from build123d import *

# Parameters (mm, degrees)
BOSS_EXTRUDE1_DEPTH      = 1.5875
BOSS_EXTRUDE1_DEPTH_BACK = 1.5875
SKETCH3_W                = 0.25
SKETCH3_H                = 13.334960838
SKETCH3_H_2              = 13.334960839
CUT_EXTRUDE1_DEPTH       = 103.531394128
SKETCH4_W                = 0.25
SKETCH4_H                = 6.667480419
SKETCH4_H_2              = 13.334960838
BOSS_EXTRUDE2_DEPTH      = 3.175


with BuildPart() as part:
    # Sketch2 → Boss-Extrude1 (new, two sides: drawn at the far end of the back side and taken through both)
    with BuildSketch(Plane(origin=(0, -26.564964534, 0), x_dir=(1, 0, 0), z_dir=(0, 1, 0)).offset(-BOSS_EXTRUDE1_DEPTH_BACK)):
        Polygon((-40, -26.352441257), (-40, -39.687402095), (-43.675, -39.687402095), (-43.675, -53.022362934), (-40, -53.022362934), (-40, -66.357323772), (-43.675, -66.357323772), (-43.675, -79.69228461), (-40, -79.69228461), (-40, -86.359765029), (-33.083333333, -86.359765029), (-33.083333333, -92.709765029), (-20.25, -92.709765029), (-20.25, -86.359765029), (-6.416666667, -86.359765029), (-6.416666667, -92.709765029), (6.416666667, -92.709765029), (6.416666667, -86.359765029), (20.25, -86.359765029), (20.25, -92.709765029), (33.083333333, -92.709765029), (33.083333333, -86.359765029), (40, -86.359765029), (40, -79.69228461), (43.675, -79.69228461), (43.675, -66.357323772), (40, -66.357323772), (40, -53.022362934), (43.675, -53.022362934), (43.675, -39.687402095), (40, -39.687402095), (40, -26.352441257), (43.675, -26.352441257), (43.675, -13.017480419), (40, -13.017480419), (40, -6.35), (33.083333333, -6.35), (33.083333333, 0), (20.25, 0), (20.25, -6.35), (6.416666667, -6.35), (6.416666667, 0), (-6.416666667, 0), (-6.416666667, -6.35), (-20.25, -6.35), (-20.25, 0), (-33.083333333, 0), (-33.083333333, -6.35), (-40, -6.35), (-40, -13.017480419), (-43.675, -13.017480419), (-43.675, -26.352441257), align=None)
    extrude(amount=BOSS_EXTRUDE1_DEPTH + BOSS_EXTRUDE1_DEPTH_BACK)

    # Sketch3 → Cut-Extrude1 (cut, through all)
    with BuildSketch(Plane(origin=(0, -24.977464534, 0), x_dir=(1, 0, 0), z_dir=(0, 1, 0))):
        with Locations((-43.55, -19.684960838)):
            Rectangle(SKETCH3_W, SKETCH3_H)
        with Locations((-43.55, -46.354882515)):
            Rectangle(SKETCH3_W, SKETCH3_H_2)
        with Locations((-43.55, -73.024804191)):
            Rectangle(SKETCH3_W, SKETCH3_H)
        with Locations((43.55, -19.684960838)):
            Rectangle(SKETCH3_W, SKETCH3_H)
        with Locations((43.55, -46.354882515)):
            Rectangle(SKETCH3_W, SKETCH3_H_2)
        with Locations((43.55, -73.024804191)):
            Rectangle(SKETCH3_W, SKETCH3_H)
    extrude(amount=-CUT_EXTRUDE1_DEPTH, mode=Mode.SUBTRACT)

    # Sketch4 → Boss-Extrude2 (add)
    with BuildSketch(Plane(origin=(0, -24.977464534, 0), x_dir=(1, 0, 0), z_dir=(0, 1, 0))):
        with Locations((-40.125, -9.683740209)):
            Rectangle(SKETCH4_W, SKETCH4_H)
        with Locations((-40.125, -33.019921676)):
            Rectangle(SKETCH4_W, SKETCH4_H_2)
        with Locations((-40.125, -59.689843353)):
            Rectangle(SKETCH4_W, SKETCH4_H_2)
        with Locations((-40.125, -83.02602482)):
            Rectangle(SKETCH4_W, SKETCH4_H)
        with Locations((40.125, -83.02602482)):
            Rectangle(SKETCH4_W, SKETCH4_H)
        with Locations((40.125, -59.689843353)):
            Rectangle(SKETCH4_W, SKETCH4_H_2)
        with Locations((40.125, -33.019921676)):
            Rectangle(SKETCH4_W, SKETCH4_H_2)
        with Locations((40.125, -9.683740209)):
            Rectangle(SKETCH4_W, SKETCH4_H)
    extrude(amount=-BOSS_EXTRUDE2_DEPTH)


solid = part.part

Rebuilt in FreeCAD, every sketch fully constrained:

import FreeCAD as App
import Part
import Sketcher
from FreeCAD import Vector
Q = App.Units.Quantity


def add_polygon(sketch, points):
    """Adds a closed chain of lines whose ends are joined by coincident constraints."""
    first, n = sketch.GeometryCount, len(points)
    for a, b in zip(points, points[1:] + points[:1]):
        sketch.addGeometry(Part.LineSegment(App.Vector(*a, 0), App.Vector(*b, 0)), False)
    for i in range(n):
        sketch.addConstraint(Sketcher.Constraint("Coincident", first + i, 2, first + (i + 1) % n, 1))

doc = App.newDocument("Part")
body = doc.addObject("PartDesign::Body", "Body")

sketch1 = body.newObject("Sketcher::SketchObject", "Sketch")
sketch1.AttachmentSupport = (doc.getObject("XZ_Plane"), [""])
sketch1.MapMode = "FlatFace"
sketch1.AttachmentOffset = App.Placement(Vector(0, 0, 26.564965), App.Rotation())
add_polygon(sketch1, [(-40, 26.4), (-40, 39.7), (-43.7, 39.7), (-43.7, 53), (-40, 53), (-40, 66.4), (-43.7, 66.4), (-43.7, 79.7), (-40, 79.7), (-40, 86.4), (-33.1, 86.4), (-33.1, 92.7), (-20.2, 92.7), (-20.2, 86.4), (-6.4, 86.4), (-6.4, 92.7), (6.4, 92.7), (6.4, 86.4), (20.2, 86.4), (20.2, 92.7), (33.1, 92.7), (33.1, 86.4), (40, 86.4), (40, 79.7), (43.7, 79.7), (43.7, 66.4), (40, 66.4), (40, 53), (43.7, 53), (43.7, 39.7), (40, 39.7), (40, 26.4), (43.7, 26.4), (43.7, 13), (40, 13), (40, 6.3), (33.1, 6.3), (33.1, 0), (20.2, 0), (20.2, 6.3), (6.4, 6.3), (6.4, 0), (-6.4, 0), (-6.4, 6.3), (-20.2, 6.3), (-20.2, 0), (-33.1, 0), (-33.1, 6.3), (-40, 6.3), (-40, 13), (-43.7, 13), (-43.7, 26.4)])
sketch1.addConstraint(Sketcher.Constraint("Vertical", 0))
sketch1.addConstraint(Sketcher.Constraint("Horizontal", 1))
sketch1.addConstraint(Sketcher.Constraint("Vertical", 2))
sketch1.addConstraint(Sketcher.Constraint("Horizontal", 3))
sketch1.addConstraint(Sketcher.Constraint("Vertical", 4))
sketch1.addConstraint(Sketcher.Constraint("Horizontal", 5))
sketch1.addConstraint(Sketcher.Constraint("Vertical", 6))
sketch1.addConstraint(Sketcher.Constraint("Horizontal", 7))
sketch1.addConstraint(Sketcher.Constraint("Vertical", 8))
sketch1.addConstraint(Sketcher.Constraint("Horizontal", 9))
sketch1.addConstraint(Sketcher.Constraint("Vertical", 10))
sketch1.addConstraint(Sketcher.Constraint("Horizontal", 11))
sketch1.addConstraint(Sketcher.Constraint("Vertical", 12))
sketch1.addConstraint(Sketcher.Constraint("Horizontal", 13))
sketch1.addConstraint(Sketcher.Constraint("Vertical", 14))
sketch1.addConstraint(Sketcher.Constraint("Horizontal", 15))
sketch1.addConstraint(Sketcher.Constraint("Vertical", 16))
sketch1.addConstraint(Sketcher.Constraint("Horizontal", 17))
sketch1.addConstraint(Sketcher.Constraint("Vertical", 18))
sketch1.addConstraint(Sketcher.Constraint("Horizontal", 19))
sketch1.addConstraint(Sketcher.Constraint("Vertical", 20))
sketch1.addConstraint(Sketcher.Constraint("Horizontal", 21))
sketch1.addConstraint(Sketcher.Constraint("Vertical", 22))
sketch1.addConstraint(Sketcher.Constraint("Horizontal", 23))
sketch1.addConstraint(Sketcher.Constraint("Vertical", 24))
sketch1.addConstraint(Sketcher.Constraint("Horizontal", 25))
sketch1.addConstraint(Sketcher.Constraint("Vertical", 26))
sketch1.addConstraint(Sketcher.Constraint("Horizontal", 27))
sketch1.addConstraint(Sketcher.Constraint("Vertical", 28))
sketch1.addConstraint(Sketcher.Constraint("Horizontal", 29))
sketch1.addConstraint(Sketcher.Constraint("Vertical", 30))
sketch1.addConstraint(Sketcher.Constraint("Horizontal", 31))
sketch1.addConstraint(Sketcher.Constraint("Vertical", 32))
sketch1.addConstraint(Sketcher.Constraint("Horizontal", 33))
sketch1.addConstraint(Sketcher.Constraint("Vertical", 34))
sketch1.addConstraint(Sketcher.Constraint("Horizontal", 35))
sketch1.addConstraint(Sketcher.Constraint("Vertical", 36))
sketch1.addConstraint(Sketcher.Constraint("Horizontal", 37))
sketch1.addConstraint(Sketcher.Constraint("Vertical", 38))
sketch1.addConstraint(Sketcher.Constraint("Horizontal", 39))
sketch1.addConstraint(Sketcher.Constraint("Vertical", 40))
sketch1.addConstraint(Sketcher.Constraint("Horizontal", 41))
sketch1.addConstraint(Sketcher.Constraint("Vertical", 42))
sketch1.addConstraint(Sketcher.Constraint("Horizontal", 43))
sketch1.addConstraint(Sketcher.Constraint("Vertical", 44))
sketch1.addConstraint(Sketcher.Constraint("Horizontal", 45))
sketch1.addConstraint(Sketcher.Constraint("Vertical", 46))
sketch1.addConstraint(Sketcher.Constraint("Horizontal", 47))
sketch1.addConstraint(Sketcher.Constraint("Vertical", 48))
sketch1.addConstraint(Sketcher.Constraint("Horizontal", 49))
sketch1.addConstraint(Sketcher.Constraint("Vertical", 50))
sketch1.addConstraint(Sketcher.Constraint("Horizontal", 51))
sketch1.addConstraint(Sketcher.Constraint("Symmetric", 40, 2, 41, 2, -1, 1))
sketch1.addConstraint(Sketcher.Constraint("Symmetric", 37, 2, 44, 2, -1, 1))
sketch1.addConstraint(Sketcher.Constraint("Symmetric", 13, 2, 16, 2, -2))
sketch1.addConstraint(Sketcher.Constraint("Symmetric", 11, 2, 18, 2, -2))
sketch1.addConstraint(Sketcher.Constraint("Symmetric", 9, 2, 20, 2, -2))
sketch1.addConstraint(Sketcher.Constraint("Symmetric", 7, 2, 22, 2, -2))
sketch1.addConstraint(Sketcher.Constraint("Symmetric", 5, 2, 24, 2, -2))
sketch1.addConstraint(Sketcher.Constraint("Symmetric", 3, 2, 26, 2, -2))
sketch1.addConstraint(Sketcher.Constraint("Symmetric", 1, 2, 28, 2, -2))
sketch1.addConstraint(Sketcher.Constraint("Symmetric", 36, 2, 45, 2, -2))
sketch1.addConstraint(Sketcher.Constraint("Symmetric", 34, 2, 47, 2, -2))
sketch1.addConstraint(Sketcher.Constraint("Symmetric", 32, 2, 49, 2, -2))
sketch1.addConstraint(Sketcher.Constraint("Symmetric", 30, 2, 51, 2, -2))
sketch1.addConstraint(Sketcher.Constraint("Horizontal", 9, 2, 12, 2))
sketch1.addConstraint(Sketcher.Constraint("Horizontal", 11, 2, 14, 2))
sketch1.addConstraint(Sketcher.Constraint("Horizontal", 35, 2, 38, 2))
sketch1.addConstraint(Sketcher.Constraint("Horizontal", 39, 2, 42, 2))
sketch1.addConstraint(Sketcher.Constraint("Vertical", 0, 2, 3, 2))
sketch1.addConstraint(Sketcher.Constraint("Vertical", 2, 2, 5, 2))
sketch1.addConstraint(Sketcher.Constraint("Vertical", 4, 2, 7, 2))
sketch1.addConstraint(Sketcher.Constraint("Vertical", 28, 2, 31, 2))
sketch1.addConstraint(Sketcher.Constraint("Vertical", 30, 2, 33, 2))
sketch1.addConstraint(Sketcher.Constraint("Vertical", 20, 2, 35, 2))
sketch1.addConstraint(Sketcher.Constraint("Vertical", 18, 2, 37, 2))
sketch1.addConstraint(Sketcher.Constraint("Vertical", 16, 2, 39, 2))
sketch1.addConstraint(Sketcher.Constraint("Equal", 11, 15))
sketch1.addConstraint(Sketcher.Constraint("Equal", 0, 2))
sketch1.addConstraint(Sketcher.Constraint("Equal", 2, 4))
sketch1.addConstraint(Sketcher.Constraint("Equal", 4, 6))
sketch1.addConstraint(Sketcher.Constraint("Equal", 30, 32))
sketch1.addConstraint(Sketcher.Constraint("Equal", 22, 34))
sketch1.addConstraint(Sketcher.Constraint("Equal", 20, 36))
sketch1.addConstraint(Sketcher.Constraint("DistanceY", 10, 1, 10, 2, Q("0.25 in")))
sketch1.addConstraint(Sketcher.Constraint("DistanceX", 1, 2, 1, 1, Q("3.675 mm")))
sketch1.addConstraint(Sketcher.Constraint("DistanceY", 0, 1, 0, 2, Q("13.334961 mm")))
sketch1.addConstraint(Sketcher.Constraint("DistanceY", 8, 1, 8, 2, Q("6.66748 mm")))
sketch1.addConstraint(Sketcher.Constraint("DistanceX", 0, 2, -1, 1, Q("40 mm")))
sketch1.addConstraint(Sketcher.Constraint("DistanceX", 11, 2, -1, 1, Q("20.25 mm")))
sketch1.addConstraint(Sketcher.Constraint("DistanceX", 10, 2, 15, 2, Q("39.5 mm")))
pad1 = body.newObject("PartDesign::Pad", "Pad")
pad1.Profile = sketch1
pad1.Type = "TwoLengths"
pad1.Length = Q("0.0625 in")
pad1.Length2 = Q("0.0625 in")
pad1.Reversed = True

sketch2 = body.newObject("Sketcher::SketchObject", "Sketch001")
sketch2.AttachmentSupport = (doc.getObject("XZ_Plane"), [""])
sketch2.MapMode = "FlatFace"
sketch2.AttachmentOffset = App.Placement(Vector(0, 0, 24.977465), App.Rotation())
add_polygon(sketch2, [(-43.67, 13.02), (-43.67, 26.35), (-43.42, 26.35), (-43.42, 13.02)])
add_polygon(sketch2, [(-43.67, 39.69), (-43.67, 53.02), (-43.42, 53.02), (-43.42, 39.69)])
add_polygon(sketch2, [(-43.67, 66.36), (-43.67, 79.69), (-43.42, 79.69), (-43.42, 66.36)])
add_polygon(sketch2, [(43.42, 13.02), (43.42, 26.35), (43.67, 26.35), (43.67, 13.02)])
add_polygon(sketch2, [(43.42, 39.69), (43.42, 53.02), (43.67, 53.02), (43.67, 39.69)])
add_polygon(sketch2, [(43.42, 66.36), (43.42, 79.69), (43.67, 79.69), (43.67, 66.36)])
sketch2.addConstraint(Sketcher.Constraint("Vertical", 0))
sketch2.addConstraint(Sketcher.Constraint("Horizontal", 1))
sketch2.addConstraint(Sketcher.Constraint("Vertical", 2))
sketch2.addConstraint(Sketcher.Constraint("Horizontal", 3))
sketch2.addConstraint(Sketcher.Constraint("Vertical", 4))
sketch2.addConstraint(Sketcher.Constraint("Horizontal", 5))
sketch2.addConstraint(Sketcher.Constraint("Vertical", 6))
sketch2.addConstraint(Sketcher.Constraint("Horizontal", 7))
sketch2.addConstraint(Sketcher.Constraint("Vertical", 8))
sketch2.addConstraint(Sketcher.Constraint("Horizontal", 9))
sketch2.addConstraint(Sketcher.Constraint("Vertical", 10))
sketch2.addConstraint(Sketcher.Constraint("Horizontal", 11))
sketch2.addConstraint(Sketcher.Constraint("Vertical", 12))
sketch2.addConstraint(Sketcher.Constraint("Horizontal", 13))
sketch2.addConstraint(Sketcher.Constraint("Vertical", 14))
sketch2.addConstraint(Sketcher.Constraint("Horizontal", 15))
sketch2.addConstraint(Sketcher.Constraint("Vertical", 16))
sketch2.addConstraint(Sketcher.Constraint("Horizontal", 17))
sketch2.addConstraint(Sketcher.Constraint("Vertical", 18))
sketch2.addConstraint(Sketcher.Constraint("Horizontal", 19))
sketch2.addConstraint(Sketcher.Constraint("Vertical", 20))
sketch2.addConstraint(Sketcher.Constraint("Horizontal", 21))
sketch2.addConstraint(Sketcher.Constraint("Vertical", 22))
sketch2.addConstraint(Sketcher.Constraint("Horizontal", 23))
sketch2.addConstraint(Sketcher.Constraint("Symmetric", 1, 2, 12, 2, -2))
sketch2.addConstraint(Sketcher.Constraint("Symmetric", 3, 2, 14, 2, -2))
sketch2.addConstraint(Sketcher.Constraint("Symmetric", 5, 2, 16, 2, -2))
sketch2.addConstraint(Sketcher.Constraint("Symmetric", 7, 2, 18, 2, -2))
sketch2.addConstraint(Sketcher.Constraint("Symmetric", 9, 2, 20, 2, -2))
sketch2.addConstraint(Sketcher.Constraint("Symmetric", 11, 2, 22, 2, -2))
sketch2.addConstraint(Sketcher.Constraint("Vertical", 3, 2, 4, 2))
sketch2.addConstraint(Sketcher.Constraint("Vertical", 2, 2, 5, 2))
sketch2.addConstraint(Sketcher.Constraint("Vertical", 7, 2, 8, 2))
sketch2.addConstraint(Sketcher.Constraint("Vertical", 6, 2, 9, 2))
sketch2.addConstraint(Sketcher.Constraint("Equal", 2, 4))
sketch2.addConstraint(Sketcher.Constraint("Equal", 6, 8))
sketch2.addConstraint(Sketcher.Constraint("DistanceX", 1, 1, 1, 2, Q("0.25 mm")))
sketch2.addConstraint(Sketcher.Constraint("DistanceY", 0, 1, 0, 2, Q("13.334961 mm")))
sketch2.addConstraint(Sketcher.Constraint("DistanceX", 0, 2, -1, 1, Q("43.675 mm")))
sketch2.addConstraint(Sketcher.Constraint("DistanceY", -1, 1, 0, 2, Q("26.352441 mm")))
sketch2.addConstraint(Sketcher.Constraint("DistanceY", 0, 2, 4, 2, Q("26.669922 mm")))
sketch2.addConstraint(Sketcher.Constraint("DistanceY", 4, 2, 8, 2, Q("26.669922 mm")))
pocket1 = body.newObject("PartDesign::Pocket", "Pocket")
pocket1.Profile = sketch2
pocket1.Type = "ThroughAll"
pocket1.Reversed = True

sketch3 = body.newObject("Sketcher::SketchObject", "Sketch002")
sketch3.AttachmentSupport = (doc.getObject("XZ_Plane"), [""])
sketch3.MapMode = "FlatFace"
sketch3.AttachmentOffset = App.Placement(Vector(0, 0, 24.977465), App.Rotation())
add_polygon(sketch3, [(-40.25, 6.35), (-40.25, 13.02), (-40, 13.02), (-40, 6.35)])
add_polygon(sketch3, [(-40.25, 26.35), (-40.25, 39.69), (-40, 39.69), (-40, 26.35)])
add_polygon(sketch3, [(-40.25, 53.02), (-40.25, 66.36), (-40, 66.36), (-40, 53.02)])
add_polygon(sketch3, [(-40.25, 79.69), (-40.25, 86.36), (-40, 86.36), (-40, 79.69)])
add_polygon(sketch3, [(40, 79.69), (40, 86.36), (40.25, 86.36), (40.25, 79.69)])
add_polygon(sketch3, [(40, 53.02), (40, 66.36), (40.25, 66.36), (40.25, 53.02)])
add_polygon(sketch3, [(40, 26.35), (40, 39.69), (40.25, 39.69), (40.25, 26.35)])
add_polygon(sketch3, [(40, 6.35), (40, 13.02), (40.25, 13.02), (40.25, 6.35)])
sketch3.addConstraint(Sketcher.Constraint("Vertical", 0))
sketch3.addConstraint(Sketcher.Constraint("Horizontal", 1))
sketch3.addConstraint(Sketcher.Constraint("Vertical", 2))
sketch3.addConstraint(Sketcher.Constraint("Horizontal", 3))
sketch3.addConstraint(Sketcher.Constraint("Vertical", 4))
sketch3.addConstraint(Sketcher.Constraint("Horizontal", 5))
sketch3.addConstraint(Sketcher.Constraint("Vertical", 6))
sketch3.addConstraint(Sketcher.Constraint("Horizontal", 7))
sketch3.addConstraint(Sketcher.Constraint("Vertical", 8))
sketch3.addConstraint(Sketcher.Constraint("Horizontal", 9))
sketch3.addConstraint(Sketcher.Constraint("Vertical", 10))
sketch3.addConstraint(Sketcher.Constraint("Horizontal", 11))
sketch3.addConstraint(Sketcher.Constraint("Vertical", 12))
sketch3.addConstraint(Sketcher.Constraint("Horizontal", 13))
sketch3.addConstraint(Sketcher.Constraint("Vertical", 14))
sketch3.addConstraint(Sketcher.Constraint("Horizontal", 15))
sketch3.addConstraint(Sketcher.Constraint("Vertical", 16))
sketch3.addConstraint(Sketcher.Constraint("Horizontal", 17))
sketch3.addConstraint(Sketcher.Constraint("Vertical", 18))
sketch3.addConstraint(Sketcher.Constraint("Horizontal", 19))
sketch3.addConstraint(Sketcher.Constraint("Vertical", 20))
sketch3.addConstraint(Sketcher.Constraint("Horizontal", 21))
sketch3.addConstraint(Sketcher.Constraint("Vertical", 22))
sketch3.addConstraint(Sketcher.Constraint("Horizontal", 23))
sketch3.addConstraint(Sketcher.Constraint("Vertical", 24))
sketch3.addConstraint(Sketcher.Constraint("Horizontal", 25))
sketch3.addConstraint(Sketcher.Constraint("Vertical", 26))
sketch3.addConstraint(Sketcher.Constraint("Horizontal", 27))
sketch3.addConstraint(Sketcher.Constraint("Vertical", 28))
sketch3.addConstraint(Sketcher.Constraint("Horizontal", 29))
sketch3.addConstraint(Sketcher.Constraint("Vertical", 30))
sketch3.addConstraint(Sketcher.Constraint("Horizontal", 31))
sketch3.addConstraint(Sketcher.Constraint("Symmetric", 13, 2, 16, 2, -2))
sketch3.addConstraint(Sketcher.Constraint("Symmetric", 15, 2, 18, 2, -2))
sketch3.addConstraint(Sketcher.Constraint("Symmetric", 9, 2, 20, 2, -2))
sketch3.addConstraint(Sketcher.Constraint("Symmetric", 11, 2, 22, 2, -2))
sketch3.addConstraint(Sketcher.Constraint("Symmetric", 5, 2, 24, 2, -2))
sketch3.addConstraint(Sketcher.Constraint("Symmetric", 7, 2, 26, 2, -2))
sketch3.addConstraint(Sketcher.Constraint("Symmetric", 1, 2, 28, 2, -2))
sketch3.addConstraint(Sketcher.Constraint("Symmetric", 3, 2, 30, 2, -2))
sketch3.addConstraint(Sketcher.Constraint("Vertical", 3, 2, 4, 2))
sketch3.addConstraint(Sketcher.Constraint("Vertical", 2, 2, 5, 2))
sketch3.addConstraint(Sketcher.Constraint("Vertical", 7, 2, 8, 2))
sketch3.addConstraint(Sketcher.Constraint("Vertical", 6, 2, 9, 2))
sketch3.addConstraint(Sketcher.Constraint("Vertical", 11, 2, 12, 2))
sketch3.addConstraint(Sketcher.Constraint("Vertical", 10, 2, 13, 2))
sketch3.addConstraint(Sketcher.Constraint("Equal", 6, 8))
sketch3.addConstraint(Sketcher.Constraint("Equal", 2, 12))
sketch3.addConstraint(Sketcher.Constraint("DistanceY", -1, 1, 2, 2, Q("0.25 in")))
sketch3.addConstraint(Sketcher.Constraint("DistanceX", 1, 1, 1, 2, Q("0.25 mm")))
sketch3.addConstraint(Sketcher.Constraint("DistanceY", 0, 1, 0, 2, Q("6.66748 mm")))
sketch3.addConstraint(Sketcher.Constraint("DistanceY", 4, 1, 4, 2, Q("13.334961 mm")))
sketch3.addConstraint(Sketcher.Constraint("DistanceX", 0, 2, -1, 1, Q("40.25 mm")))
sketch3.addConstraint(Sketcher.Constraint("DistanceY", -1, 1, 6, 2, Q("26.352441 mm")))
sketch3.addConstraint(Sketcher.Constraint("DistanceY", 4, 2, 8, 2, Q("26.669922 mm")))
sketch3.addConstraint(Sketcher.Constraint("DistanceY", 8, 2, 12, 2, Q("20.002441 mm")))
pad2 = body.newObject("PartDesign::Pad", "Pad001")
pad2.Profile = sketch3
pad2.Length = Q("0.125 in")

doc.recompute()
